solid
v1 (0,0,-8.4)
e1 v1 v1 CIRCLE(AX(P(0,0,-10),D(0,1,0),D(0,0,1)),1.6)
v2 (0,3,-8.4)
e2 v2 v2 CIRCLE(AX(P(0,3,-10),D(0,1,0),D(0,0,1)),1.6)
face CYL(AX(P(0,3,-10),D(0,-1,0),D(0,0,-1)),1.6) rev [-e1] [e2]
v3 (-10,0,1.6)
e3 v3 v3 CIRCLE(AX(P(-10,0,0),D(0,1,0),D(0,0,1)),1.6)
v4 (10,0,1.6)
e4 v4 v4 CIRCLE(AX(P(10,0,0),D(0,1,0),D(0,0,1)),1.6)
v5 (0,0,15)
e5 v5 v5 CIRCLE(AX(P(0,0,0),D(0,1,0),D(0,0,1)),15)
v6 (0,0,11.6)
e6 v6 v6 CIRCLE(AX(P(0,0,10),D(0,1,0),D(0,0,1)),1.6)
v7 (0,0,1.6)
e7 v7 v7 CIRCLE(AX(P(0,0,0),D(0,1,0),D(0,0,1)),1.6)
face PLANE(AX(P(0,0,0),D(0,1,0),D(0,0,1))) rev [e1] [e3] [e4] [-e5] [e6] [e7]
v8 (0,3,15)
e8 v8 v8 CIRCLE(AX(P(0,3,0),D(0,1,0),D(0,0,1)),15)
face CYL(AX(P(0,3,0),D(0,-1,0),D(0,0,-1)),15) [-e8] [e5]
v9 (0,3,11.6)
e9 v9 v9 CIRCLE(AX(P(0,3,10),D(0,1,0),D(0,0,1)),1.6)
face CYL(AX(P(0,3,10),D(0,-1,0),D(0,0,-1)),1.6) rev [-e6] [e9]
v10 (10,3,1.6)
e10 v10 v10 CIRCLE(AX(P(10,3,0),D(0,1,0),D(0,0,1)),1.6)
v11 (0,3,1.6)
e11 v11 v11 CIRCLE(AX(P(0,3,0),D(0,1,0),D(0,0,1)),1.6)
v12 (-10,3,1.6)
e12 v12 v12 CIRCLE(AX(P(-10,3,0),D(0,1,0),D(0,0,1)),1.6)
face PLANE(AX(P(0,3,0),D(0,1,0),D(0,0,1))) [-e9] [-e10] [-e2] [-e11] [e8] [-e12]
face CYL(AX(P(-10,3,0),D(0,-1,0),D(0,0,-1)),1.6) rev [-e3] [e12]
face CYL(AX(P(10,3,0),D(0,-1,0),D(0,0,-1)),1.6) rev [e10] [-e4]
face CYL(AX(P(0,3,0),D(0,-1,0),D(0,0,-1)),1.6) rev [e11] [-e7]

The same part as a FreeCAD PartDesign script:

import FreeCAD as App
import Part
import Sketcher
Q = App.Units.Quantity

doc = App.newDocument("Part")
body = doc.addObject("PartDesign::Body", "Body")

# Sketch on XZ plane
sketch1 = doc.addObject("Sketcher::SketchObject", "Sketch")
body.addObject(sketch1)
sketch1.AttachmentSupport = (doc.XZ_Plane, [""])
sketch1.MapMode = "FlatFace"
sketch1.addGeometry(Part.Circle(App.Vector(0, 0, 0), App.Vector(0, 0, 1), 15), False)
sketch1.addGeometry(Part.Circle(App.Vector(0, -10, 0), App.Vector(0, 0, 1), 1.6), False)
sketch1.addGeometry(Part.Circle(App.Vector(-10, 0, 0), App.Vector(0, 0, 1), 1.6), False)
sketch1.addGeometry(Part.Circle(App.Vector(10, 0, 0), App.Vector(0, 0, 1), 1.6), False)
sketch1.addGeometry(Part.Circle(App.Vector(0, 0, 0), App.Vector(0, 0, 1), 1.6), False)
sketch1.addGeometry(Part.Circle(App.Vector(0, 10, 0), App.Vector(0, 0, 1), 1.6), False)
sketch1.addConstraint(Sketcher.Constraint("Coincident", 0, 3, -1, 1))
sketch1.addConstraint(Sketcher.Constraint("Coincident", 4, 3, -1, 1))
sketch1.addConstraint(Sketcher.Constraint("Equal", 1, 2))
sketch1.addConstraint(Sketcher.Constraint("Equal", 2, 3))
sketch1.addConstraint(Sketcher.Constraint("Equal", 3, 4))
sketch1.addConstraint(Sketcher.Constraint("Equal", 4, 5))
sketch1.addConstraint(Sketcher.Constraint("Symmetric", 2, 3, 3, 3, -1, 1))
sketch1.addConstraint(Sketcher.Constraint("Symmetric", 1, 3, 5, 3, -1, 1))
sketch1.addConstraint(Sketcher.Constraint("PointOnObject", 1, 3, -2))
sketch1.addConstraint(Sketcher.Constraint("PointOnObject", 2, 3, -1))
sketch1.addConstraint(Sketcher.Constraint("Diameter", 0, Q("30 mm")))
sketch1.addConstraint(Sketcher.Constraint("Diameter", 1, Q("3.2 mm")))
sketch1.addConstraint(Sketcher.Constraint("DistanceY", 1, 3, -1, 1, Q("10 mm")))
sketch1.addConstraint(Sketcher.Constraint("DistanceX", 2, 3, -1, 1, Q("10 mm")))
pad1 = doc.addObject("PartDesign::Pad", "Pad")
body.addObject(pad1)
pad1.Profile = sketch1
pad1.Length = 3
pad1.Reversed = True

doc.recompute()
